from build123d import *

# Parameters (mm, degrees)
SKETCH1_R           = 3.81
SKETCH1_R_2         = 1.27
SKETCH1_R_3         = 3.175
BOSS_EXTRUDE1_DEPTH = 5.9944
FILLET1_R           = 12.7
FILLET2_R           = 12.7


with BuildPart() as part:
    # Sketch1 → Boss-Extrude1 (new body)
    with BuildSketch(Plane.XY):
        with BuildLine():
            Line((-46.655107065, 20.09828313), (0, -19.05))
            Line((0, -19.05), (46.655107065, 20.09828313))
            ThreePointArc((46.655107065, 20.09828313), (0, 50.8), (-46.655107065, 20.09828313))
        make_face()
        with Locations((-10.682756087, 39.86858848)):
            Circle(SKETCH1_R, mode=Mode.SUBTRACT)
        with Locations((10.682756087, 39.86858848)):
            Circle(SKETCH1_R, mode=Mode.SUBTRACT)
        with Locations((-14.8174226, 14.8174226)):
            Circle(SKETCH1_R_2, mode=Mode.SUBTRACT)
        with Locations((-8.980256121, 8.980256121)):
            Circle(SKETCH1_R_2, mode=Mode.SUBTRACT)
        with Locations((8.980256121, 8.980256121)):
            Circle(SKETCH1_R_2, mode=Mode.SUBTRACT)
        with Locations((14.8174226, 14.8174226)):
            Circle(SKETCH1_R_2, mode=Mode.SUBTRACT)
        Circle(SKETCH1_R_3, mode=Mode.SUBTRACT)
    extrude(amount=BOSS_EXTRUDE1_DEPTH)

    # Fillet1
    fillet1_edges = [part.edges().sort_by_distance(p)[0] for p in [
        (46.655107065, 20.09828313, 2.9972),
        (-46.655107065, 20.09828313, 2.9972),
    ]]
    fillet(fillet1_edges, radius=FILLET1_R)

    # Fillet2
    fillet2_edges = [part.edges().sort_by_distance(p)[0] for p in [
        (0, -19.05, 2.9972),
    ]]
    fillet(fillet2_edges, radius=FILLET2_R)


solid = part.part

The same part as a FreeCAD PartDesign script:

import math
import FreeCAD as App
import Part
import Sketcher
Q = App.Units.Quantity


def edges_at(feature, points):
    """Names of the edges that pass closest to the given points."""
    edges = feature.Shape.Edges
    near = lambda p: min(range(len(edges)), key=lambda i: edges[i].distToShape(Part.Vertex(*p))[0])
    return sorted({f"Edge{near(p) + 1}" for p in points})

doc = App.newDocument("Part")
body = doc.addObject("PartDesign::Body", "Body")

sketch1 = doc.addObject("Sketcher::SketchObject", "Sketch")
body.addObject(sketch1)
sketch1.AttachmentSupport = (doc.XY_Plane, [""])
sketch1.MapMode = "FlatFace"
sketch1.addGeometry([
    Part.LineSegment(App.Vector(-46.7, 20.1, 0), App.Vector(0, -19.1, 0)),
    Part.LineSegment(App.Vector(0, -19.1, 0), App.Vector(46.7, 20.1, 0)),
    Part.ArcOfCircle(Part.Circle(App.Vector(0, 0, 0), App.Vector(0, 0, 1), 50.8), math.radians(23), math.radians(157)),
    Part.Circle(App.Vector(-9, 9, 0), App.Vector(0, 0, 1), 1.3),
    Part.Circle(App.Vector(-14.8, 14.8, 0), App.Vector(0, 0, 1), 1.3),
    Part.Circle(App.Vector(0, 0, 0), App.Vector(0, 0, 1), 3.2),
    Part.Circle(App.Vector(9, 9, 0), App.Vector(0, 0, 1), 1.3),
    Part.Circle(App.Vector(14.8, 14.8, 0), App.Vector(0, 0, 1), 1.3),
    Part.Circle(App.Vector(-10.7, 39.9, 0), App.Vector(0, 0, 1), 3.8),
    Part.Circle(App.Vector(10.7, 39.9, 0), App.Vector(0, 0, 1), 3.8),
], False)
sketch1.addConstraint([
    Sketcher.Constraint("Coincident", 0, 2, 1, 1),
    Sketcher.Constraint("Coincident", 1, 2, 2, 1),
    Sketcher.Constraint("Coincident", 2, 2, 0, 1),
    Sketcher.Constraint("Coincident", 2, 3, -1, 1),
    Sketcher.Constraint("Coincident", 5, 3, -1, 1),
    Sketcher.Constraint("Equal", 3, 4),
    Sketcher.Constraint("Equal", 4, 6),
    Sketcher.Constraint("Equal", 6, 7),
    Sketcher.Constraint("Equal", 8, 9),
    Sketcher.Constraint("Symmetric", 3, 3, 6, 3, -2),
    Sketcher.Constraint("Symmetric", 4, 3, 7, 3, -2),
    Sketcher.Constraint("Symmetric", 8, 3, 9, 3, -2),
    Sketcher.Constraint("PointOnObject", 0, 2, -2),
    Sketcher.Constraint("Horizontal", 1, 2, 2, 2),
    Sketcher.Constraint("Radius", 2, Q("2 in")),
    Sketcher.Constraint("Diameter", 3, Q("0.1 in")),
    Sketcher.Constraint("Diameter", 8, Q("0.3 in")),
    Sketcher.Constraint("Diameter", 5, Q("0.25 in")),
    Sketcher.Constraint("Angle", 0, Q("-40 deg")),
    Sketcher.Constraint("DistanceY", 0, 2, -1, 1, Q("0.75 in")),
    Sketcher.Constraint("DistanceX", 8, 3, 3, 3, 1.7025),
    Sketcher.Constraint("DistanceY", -1, 1, 8, 3, 39.868588),
    Sketcher.Constraint("DistanceX", 4, 3, 6, 3, 23.797679),
    Sketcher.Constraint("DistanceY", 7, 3, 1, 2, 5.280861),
    Sketcher.Constraint("DistanceX", 6, 3, 1, 2, 37.674851),
    Sketcher.Constraint("DistanceY", -1, 1, 3, 3, 8.980256),
])
pad1 = doc.addObject("PartDesign::Pad", "Pad")
body.addObject(pad1)
pad1.Profile = sketch1
pad1.Length = Q("0.236 in")
doc.recompute()

fillet = doc.addObject("PartDesign::Fillet", "Fillet")
body.addObject(fillet)
fillet.Base = (pad1, edges_at(pad1, [(46.655, 20.098, 2.997), (-46.655, 20.098, 2.997)]))
fillet.Radius = Q("0.5 in")
doc.recompute()

fillet2 = doc.addObject("PartDesign::Fillet", "Fillet001")
body.addObject(fillet2)
fillet2.Base = (fillet, edges_at(fillet, [(0, -19.05, 2.997)]))
fillet2.Radius = Q("0.5 in")

doc.recompute()
